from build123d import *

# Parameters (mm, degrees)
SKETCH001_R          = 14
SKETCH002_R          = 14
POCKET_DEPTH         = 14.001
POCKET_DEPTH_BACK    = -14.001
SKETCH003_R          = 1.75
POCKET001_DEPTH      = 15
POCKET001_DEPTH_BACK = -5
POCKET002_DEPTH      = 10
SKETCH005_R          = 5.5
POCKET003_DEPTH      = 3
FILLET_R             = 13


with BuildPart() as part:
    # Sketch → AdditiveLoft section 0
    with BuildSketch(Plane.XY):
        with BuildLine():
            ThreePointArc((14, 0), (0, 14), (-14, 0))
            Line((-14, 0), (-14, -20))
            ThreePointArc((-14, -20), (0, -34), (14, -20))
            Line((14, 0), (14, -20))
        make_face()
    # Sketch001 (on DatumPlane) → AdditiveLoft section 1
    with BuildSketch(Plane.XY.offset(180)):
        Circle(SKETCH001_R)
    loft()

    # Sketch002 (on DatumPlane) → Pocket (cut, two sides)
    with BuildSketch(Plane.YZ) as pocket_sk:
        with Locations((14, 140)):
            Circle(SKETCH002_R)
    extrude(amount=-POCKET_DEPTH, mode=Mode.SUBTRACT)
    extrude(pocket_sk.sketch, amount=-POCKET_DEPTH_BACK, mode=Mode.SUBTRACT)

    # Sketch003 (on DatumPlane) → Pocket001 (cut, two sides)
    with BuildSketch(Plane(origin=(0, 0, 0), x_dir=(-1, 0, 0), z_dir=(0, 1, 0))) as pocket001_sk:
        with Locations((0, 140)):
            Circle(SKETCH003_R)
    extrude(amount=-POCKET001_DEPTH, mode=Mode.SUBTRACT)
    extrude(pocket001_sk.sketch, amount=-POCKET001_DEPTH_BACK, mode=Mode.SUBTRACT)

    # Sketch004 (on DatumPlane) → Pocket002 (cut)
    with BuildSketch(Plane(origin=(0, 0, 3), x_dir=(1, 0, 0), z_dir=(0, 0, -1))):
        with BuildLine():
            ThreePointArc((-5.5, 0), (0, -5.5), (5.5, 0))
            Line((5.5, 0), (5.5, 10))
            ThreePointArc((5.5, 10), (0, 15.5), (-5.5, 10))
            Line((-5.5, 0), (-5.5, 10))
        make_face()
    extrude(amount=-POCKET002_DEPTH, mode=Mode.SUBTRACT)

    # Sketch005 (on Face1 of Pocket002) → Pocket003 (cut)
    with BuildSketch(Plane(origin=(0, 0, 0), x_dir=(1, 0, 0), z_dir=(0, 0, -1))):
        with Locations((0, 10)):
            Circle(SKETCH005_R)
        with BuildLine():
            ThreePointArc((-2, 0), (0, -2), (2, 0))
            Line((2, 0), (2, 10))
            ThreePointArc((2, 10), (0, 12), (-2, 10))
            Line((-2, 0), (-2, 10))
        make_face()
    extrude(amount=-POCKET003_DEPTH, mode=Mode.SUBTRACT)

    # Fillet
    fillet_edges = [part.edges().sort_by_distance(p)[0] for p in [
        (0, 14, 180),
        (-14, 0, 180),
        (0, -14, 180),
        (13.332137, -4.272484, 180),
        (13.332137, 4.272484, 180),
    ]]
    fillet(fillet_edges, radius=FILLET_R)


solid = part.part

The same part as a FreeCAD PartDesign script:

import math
import FreeCAD as App
import Part
import Sketcher
Q = App.Units.Quantity


def edges_at(feature, points):
    """Names of the edges that pass closest to the given points."""
    edges = feature.Shape.Edges
    near = lambda p: min(range(len(edges)), key=lambda i: edges[i].distToShape(Part.Vertex(*p))[0])
    return sorted({f"Edge{near(p) + 1}" for p in points})

doc = App.newDocument("Part")
body = doc.addObject("PartDesign::Body", "Body")

# Sketch on XY plane
sketch1 = body.newObject("Sketcher::SketchObject", "Sketch")
sketch1.AttachmentSupport = (doc.getObject("XY_Plane"), [""])
sketch1.MapMode = "FlatFace"
sketch1.addGeometry([
    Part.ArcOfCircle(Part.Circle(App.Vector(0, 0, 0), App.Vector(0, 0, 1), 14), math.radians(0), math.radians(180)),
    Part.LineSegment(App.Vector(-14, 0, 0), App.Vector(-14, -20, 0)),
    Part.ArcOfCircle(Part.Circle(App.Vector(0, -20, 0), App.Vector(0, 0, 1), 14), math.radians(180), math.radians(360)),
    Part.LineSegment(App.Vector(14, -20, 0), App.Vector(14, 0, 0)),
], False)
sketch1.addConstraint([
    Sketcher.Constraint("Tangent", 0, 2, 1, 1),
    Sketcher.Constraint("Tangent", 1, 2, 2, 1),
    Sketcher.Constraint("Tangent", 2, 2, 3, 1),
    Sketcher.Constraint("Tangent", 3, 2, 0, 1),
    Sketcher.Constraint("Vertical", 1),
    Sketcher.Constraint("Vertical", 3),
    Sketcher.Constraint("Coincident", 0, 3, -1, 1),
    Sketcher.Constraint("Radius", 0, Q("14 mm")),
    Sketcher.Constraint("DistanceY", 1, 2, 1, 1, Q("20 mm")),
])

# Sketch on XY plane
sketch2 = body.newObject("Sketcher::SketchObject", "Sketch001")
sketch2.AttachmentSupport = (doc.getObject("XY_Plane"), [""])
sketch2.MapMode = "FlatFace"
sketch2.AttachmentOffset = App.Placement(App.Vector(0, 0, 180), App.Rotation())
sketch2.addGeometry(Part.Circle(App.Vector(0, 0, 0), App.Vector(0, 0, 1), 14), False)
sketch2.addConstraint([
    Sketcher.Constraint("Coincident", 0, 3, -1, 1),
    Sketcher.Constraint("Diameter", 0, Q("28 mm")),
])

additiveloft = body.newObject("PartDesign::AdditiveLoft", "AdditiveLoft")
additiveloft.Profile = sketch1
additiveloft.Sections = [sketch2]

# Sketch on YZ plane
sketch3 = body.newObject("Sketcher::SketchObject", "Sketch002")
sketch3.AttachmentSupport = (doc.getObject("YZ_Plane"), [""])
sketch3.MapMode = "FlatFace"
sketch3.addGeometry(Part.Circle(App.Vector(14, 140, 0), App.Vector(0, 0, 1), 14), False)
sketch3.addConstraint([
    Sketcher.Constraint("Diameter", 0, Q("28 mm")),
    Sketcher.Constraint("DistanceX", -1, 1, 0, 3, Q("14 mm")),
    Sketcher.Constraint("DistanceY", -1, 1, 0, 3, Q("140 mm")),
])
pocket1 = body.newObject("PartDesign::Pocket", "Pocket")
pocket1.Profile = sketch3
pocket1.Type = "ThroughAll"
pocket1.Midplane = True

# Sketch on XZ plane
sketch4 = body.newObject("Sketcher::SketchObject", "Sketch003")
sketch4.AttachmentSupport = (doc.getObject("XZ_Plane"), [""])
sketch4.MapMode = "FlatFace"
sketch4.addGeometry(Part.Circle(App.Vector(0, 140, 0), App.Vector(0, 0, 1), 1.8), False)
sketch4.addConstraint([
    Sketcher.Constraint("PointOnObject", 0, 3, -2),
    Sketcher.Constraint("Diameter", 0, Q("3.5 mm")),
    Sketcher.Constraint("DistanceY", -1, 1, 0, 3, Q("140 mm")),
])
pocket2 = body.newObject("PartDesign::Pocket", "Pocket001")
pocket2.Profile = sketch4
pocket2.Type = "TwoLengths"
pocket2.Length = 15
pocket2.Length2 = 5
pocket2.Reversed = True

# Sketch on XY plane
sketch5 = body.newObject("Sketcher::SketchObject", "Sketch004")
sketch5.AttachmentSupport = (doc.getObject("XY_Plane"), [""])
sketch5.MapMode = "FlatFace"
sketch5.AttachmentOffset = App.Placement(App.Vector(0, 0, 3), App.Rotation())
sketch5.addGeometry([
    Part.ArcOfCircle(Part.Circle(App.Vector(0, 0, 0), App.Vector(0, 0, 1), 6), math.radians(0), math.radians(180)),
    Part.LineSegment(App.Vector(6, 0, 0), App.Vector(6, -10, 0)),
    Part.ArcOfCircle(Part.Circle(App.Vector(0, -10, 0), App.Vector(0, 0, 1), 6), math.radians(180), math.radians(360)),
    Part.LineSegment(App.Vector(-6, -10, 0), App.Vector(-6, 0, 0)),
], False)
sketch5.addConstraint([
    Sketcher.Constraint("Tangent", 0, 1, 1, 1),
    Sketcher.Constraint("Tangent", 1, 2, 2, 2),
    Sketcher.Constraint("Tangent", 2, 1, 3, 1),
    Sketcher.Constraint("Tangent", 3, 2, 0, 2),
    Sketcher.Constraint("Vertical", 1),
    Sketcher.Constraint("Vertical", 3),
    Sketcher.Constraint("Coincident", 0, 3, -1, 1),
    Sketcher.Constraint("Radius", 0, Q("5.5 mm")),
    Sketcher.Constraint("DistanceY", 1, 2, 1, 1, Q("10 mm")),
])
pocket3 = body.newObject("PartDesign::Pocket", "Pocket002")
pocket3.Profile = sketch5
pocket3.Length = 10
pocket3.Reversed = True

# Sketch on XY plane
sketch6 = body.newObject("Sketcher::SketchObject", "Sketch005")
sketch6.AttachmentSupport = (doc.getObject("XY_Plane"), [""])
sketch6.MapMode = "FlatFace"
sketch6.addGeometry([
    Part.ArcOfCircle(Part.Circle(App.Vector(0, -10, 0), App.Vector(0, 0, 1), 5.5), math.radians(111), math.radians(429)),
    Part.LineSegment(App.Vector(-2, -4.9, 0), App.Vector(-2, 0, 0)),
    Part.ArcOfCircle(Part.Circle(App.Vector(0, 0, 0), App.Vector(0, 0, 1), 2), math.radians(0), math.radians(180)),
    Part.LineSegment(App.Vector(2, 0, 0), App.Vector(2, -4.9, 0)),
], False)
sketch6.addConstraint([
    Sketcher.Constraint("Coincident", 0, 1, 1, 1),
    Sketcher.Constraint("Tangent", 1, 2, 2, 2),
    Sketcher.Constraint("Tangent", 2, 1, 3, 1),
    Sketcher.Constraint("Coincident", 3, 2, 0, 2),
    Sketcher.Constraint("Vertical", 1),
    Sketcher.Constraint("Vertical", 3),
    Sketcher.Constraint("Coincident", 2, 3, -1, 1),
    Sketcher.Constraint("PointOnObject", 0, 3, -2),
    Sketcher.Constraint("Radius", 2, Q("2 mm")),
    Sketcher.Constraint("Radius", 0, Q("5.5 mm")),
    Sketcher.Constraint("DistanceY", 0, 3, -1, 1, Q("10 mm")),
])
pocket4 = body.newObject("PartDesign::Pocket", "Pocket003")
pocket4.Profile = sketch6
pocket4.Length = 3
pocket4.Reversed = True
doc.recompute()

fillet = body.newObject("PartDesign::Fillet", "Fillet")
fillet.Base = (pocket4, edges_at(pocket4, [
    (0, 14, 180),
    (-14, 0, 180),
    (0, -14, 180),
    (13.332, -4.272, 180),
    (13.332, 4.272, 180),
]))
fillet.Radius = 13

doc.recompute()
